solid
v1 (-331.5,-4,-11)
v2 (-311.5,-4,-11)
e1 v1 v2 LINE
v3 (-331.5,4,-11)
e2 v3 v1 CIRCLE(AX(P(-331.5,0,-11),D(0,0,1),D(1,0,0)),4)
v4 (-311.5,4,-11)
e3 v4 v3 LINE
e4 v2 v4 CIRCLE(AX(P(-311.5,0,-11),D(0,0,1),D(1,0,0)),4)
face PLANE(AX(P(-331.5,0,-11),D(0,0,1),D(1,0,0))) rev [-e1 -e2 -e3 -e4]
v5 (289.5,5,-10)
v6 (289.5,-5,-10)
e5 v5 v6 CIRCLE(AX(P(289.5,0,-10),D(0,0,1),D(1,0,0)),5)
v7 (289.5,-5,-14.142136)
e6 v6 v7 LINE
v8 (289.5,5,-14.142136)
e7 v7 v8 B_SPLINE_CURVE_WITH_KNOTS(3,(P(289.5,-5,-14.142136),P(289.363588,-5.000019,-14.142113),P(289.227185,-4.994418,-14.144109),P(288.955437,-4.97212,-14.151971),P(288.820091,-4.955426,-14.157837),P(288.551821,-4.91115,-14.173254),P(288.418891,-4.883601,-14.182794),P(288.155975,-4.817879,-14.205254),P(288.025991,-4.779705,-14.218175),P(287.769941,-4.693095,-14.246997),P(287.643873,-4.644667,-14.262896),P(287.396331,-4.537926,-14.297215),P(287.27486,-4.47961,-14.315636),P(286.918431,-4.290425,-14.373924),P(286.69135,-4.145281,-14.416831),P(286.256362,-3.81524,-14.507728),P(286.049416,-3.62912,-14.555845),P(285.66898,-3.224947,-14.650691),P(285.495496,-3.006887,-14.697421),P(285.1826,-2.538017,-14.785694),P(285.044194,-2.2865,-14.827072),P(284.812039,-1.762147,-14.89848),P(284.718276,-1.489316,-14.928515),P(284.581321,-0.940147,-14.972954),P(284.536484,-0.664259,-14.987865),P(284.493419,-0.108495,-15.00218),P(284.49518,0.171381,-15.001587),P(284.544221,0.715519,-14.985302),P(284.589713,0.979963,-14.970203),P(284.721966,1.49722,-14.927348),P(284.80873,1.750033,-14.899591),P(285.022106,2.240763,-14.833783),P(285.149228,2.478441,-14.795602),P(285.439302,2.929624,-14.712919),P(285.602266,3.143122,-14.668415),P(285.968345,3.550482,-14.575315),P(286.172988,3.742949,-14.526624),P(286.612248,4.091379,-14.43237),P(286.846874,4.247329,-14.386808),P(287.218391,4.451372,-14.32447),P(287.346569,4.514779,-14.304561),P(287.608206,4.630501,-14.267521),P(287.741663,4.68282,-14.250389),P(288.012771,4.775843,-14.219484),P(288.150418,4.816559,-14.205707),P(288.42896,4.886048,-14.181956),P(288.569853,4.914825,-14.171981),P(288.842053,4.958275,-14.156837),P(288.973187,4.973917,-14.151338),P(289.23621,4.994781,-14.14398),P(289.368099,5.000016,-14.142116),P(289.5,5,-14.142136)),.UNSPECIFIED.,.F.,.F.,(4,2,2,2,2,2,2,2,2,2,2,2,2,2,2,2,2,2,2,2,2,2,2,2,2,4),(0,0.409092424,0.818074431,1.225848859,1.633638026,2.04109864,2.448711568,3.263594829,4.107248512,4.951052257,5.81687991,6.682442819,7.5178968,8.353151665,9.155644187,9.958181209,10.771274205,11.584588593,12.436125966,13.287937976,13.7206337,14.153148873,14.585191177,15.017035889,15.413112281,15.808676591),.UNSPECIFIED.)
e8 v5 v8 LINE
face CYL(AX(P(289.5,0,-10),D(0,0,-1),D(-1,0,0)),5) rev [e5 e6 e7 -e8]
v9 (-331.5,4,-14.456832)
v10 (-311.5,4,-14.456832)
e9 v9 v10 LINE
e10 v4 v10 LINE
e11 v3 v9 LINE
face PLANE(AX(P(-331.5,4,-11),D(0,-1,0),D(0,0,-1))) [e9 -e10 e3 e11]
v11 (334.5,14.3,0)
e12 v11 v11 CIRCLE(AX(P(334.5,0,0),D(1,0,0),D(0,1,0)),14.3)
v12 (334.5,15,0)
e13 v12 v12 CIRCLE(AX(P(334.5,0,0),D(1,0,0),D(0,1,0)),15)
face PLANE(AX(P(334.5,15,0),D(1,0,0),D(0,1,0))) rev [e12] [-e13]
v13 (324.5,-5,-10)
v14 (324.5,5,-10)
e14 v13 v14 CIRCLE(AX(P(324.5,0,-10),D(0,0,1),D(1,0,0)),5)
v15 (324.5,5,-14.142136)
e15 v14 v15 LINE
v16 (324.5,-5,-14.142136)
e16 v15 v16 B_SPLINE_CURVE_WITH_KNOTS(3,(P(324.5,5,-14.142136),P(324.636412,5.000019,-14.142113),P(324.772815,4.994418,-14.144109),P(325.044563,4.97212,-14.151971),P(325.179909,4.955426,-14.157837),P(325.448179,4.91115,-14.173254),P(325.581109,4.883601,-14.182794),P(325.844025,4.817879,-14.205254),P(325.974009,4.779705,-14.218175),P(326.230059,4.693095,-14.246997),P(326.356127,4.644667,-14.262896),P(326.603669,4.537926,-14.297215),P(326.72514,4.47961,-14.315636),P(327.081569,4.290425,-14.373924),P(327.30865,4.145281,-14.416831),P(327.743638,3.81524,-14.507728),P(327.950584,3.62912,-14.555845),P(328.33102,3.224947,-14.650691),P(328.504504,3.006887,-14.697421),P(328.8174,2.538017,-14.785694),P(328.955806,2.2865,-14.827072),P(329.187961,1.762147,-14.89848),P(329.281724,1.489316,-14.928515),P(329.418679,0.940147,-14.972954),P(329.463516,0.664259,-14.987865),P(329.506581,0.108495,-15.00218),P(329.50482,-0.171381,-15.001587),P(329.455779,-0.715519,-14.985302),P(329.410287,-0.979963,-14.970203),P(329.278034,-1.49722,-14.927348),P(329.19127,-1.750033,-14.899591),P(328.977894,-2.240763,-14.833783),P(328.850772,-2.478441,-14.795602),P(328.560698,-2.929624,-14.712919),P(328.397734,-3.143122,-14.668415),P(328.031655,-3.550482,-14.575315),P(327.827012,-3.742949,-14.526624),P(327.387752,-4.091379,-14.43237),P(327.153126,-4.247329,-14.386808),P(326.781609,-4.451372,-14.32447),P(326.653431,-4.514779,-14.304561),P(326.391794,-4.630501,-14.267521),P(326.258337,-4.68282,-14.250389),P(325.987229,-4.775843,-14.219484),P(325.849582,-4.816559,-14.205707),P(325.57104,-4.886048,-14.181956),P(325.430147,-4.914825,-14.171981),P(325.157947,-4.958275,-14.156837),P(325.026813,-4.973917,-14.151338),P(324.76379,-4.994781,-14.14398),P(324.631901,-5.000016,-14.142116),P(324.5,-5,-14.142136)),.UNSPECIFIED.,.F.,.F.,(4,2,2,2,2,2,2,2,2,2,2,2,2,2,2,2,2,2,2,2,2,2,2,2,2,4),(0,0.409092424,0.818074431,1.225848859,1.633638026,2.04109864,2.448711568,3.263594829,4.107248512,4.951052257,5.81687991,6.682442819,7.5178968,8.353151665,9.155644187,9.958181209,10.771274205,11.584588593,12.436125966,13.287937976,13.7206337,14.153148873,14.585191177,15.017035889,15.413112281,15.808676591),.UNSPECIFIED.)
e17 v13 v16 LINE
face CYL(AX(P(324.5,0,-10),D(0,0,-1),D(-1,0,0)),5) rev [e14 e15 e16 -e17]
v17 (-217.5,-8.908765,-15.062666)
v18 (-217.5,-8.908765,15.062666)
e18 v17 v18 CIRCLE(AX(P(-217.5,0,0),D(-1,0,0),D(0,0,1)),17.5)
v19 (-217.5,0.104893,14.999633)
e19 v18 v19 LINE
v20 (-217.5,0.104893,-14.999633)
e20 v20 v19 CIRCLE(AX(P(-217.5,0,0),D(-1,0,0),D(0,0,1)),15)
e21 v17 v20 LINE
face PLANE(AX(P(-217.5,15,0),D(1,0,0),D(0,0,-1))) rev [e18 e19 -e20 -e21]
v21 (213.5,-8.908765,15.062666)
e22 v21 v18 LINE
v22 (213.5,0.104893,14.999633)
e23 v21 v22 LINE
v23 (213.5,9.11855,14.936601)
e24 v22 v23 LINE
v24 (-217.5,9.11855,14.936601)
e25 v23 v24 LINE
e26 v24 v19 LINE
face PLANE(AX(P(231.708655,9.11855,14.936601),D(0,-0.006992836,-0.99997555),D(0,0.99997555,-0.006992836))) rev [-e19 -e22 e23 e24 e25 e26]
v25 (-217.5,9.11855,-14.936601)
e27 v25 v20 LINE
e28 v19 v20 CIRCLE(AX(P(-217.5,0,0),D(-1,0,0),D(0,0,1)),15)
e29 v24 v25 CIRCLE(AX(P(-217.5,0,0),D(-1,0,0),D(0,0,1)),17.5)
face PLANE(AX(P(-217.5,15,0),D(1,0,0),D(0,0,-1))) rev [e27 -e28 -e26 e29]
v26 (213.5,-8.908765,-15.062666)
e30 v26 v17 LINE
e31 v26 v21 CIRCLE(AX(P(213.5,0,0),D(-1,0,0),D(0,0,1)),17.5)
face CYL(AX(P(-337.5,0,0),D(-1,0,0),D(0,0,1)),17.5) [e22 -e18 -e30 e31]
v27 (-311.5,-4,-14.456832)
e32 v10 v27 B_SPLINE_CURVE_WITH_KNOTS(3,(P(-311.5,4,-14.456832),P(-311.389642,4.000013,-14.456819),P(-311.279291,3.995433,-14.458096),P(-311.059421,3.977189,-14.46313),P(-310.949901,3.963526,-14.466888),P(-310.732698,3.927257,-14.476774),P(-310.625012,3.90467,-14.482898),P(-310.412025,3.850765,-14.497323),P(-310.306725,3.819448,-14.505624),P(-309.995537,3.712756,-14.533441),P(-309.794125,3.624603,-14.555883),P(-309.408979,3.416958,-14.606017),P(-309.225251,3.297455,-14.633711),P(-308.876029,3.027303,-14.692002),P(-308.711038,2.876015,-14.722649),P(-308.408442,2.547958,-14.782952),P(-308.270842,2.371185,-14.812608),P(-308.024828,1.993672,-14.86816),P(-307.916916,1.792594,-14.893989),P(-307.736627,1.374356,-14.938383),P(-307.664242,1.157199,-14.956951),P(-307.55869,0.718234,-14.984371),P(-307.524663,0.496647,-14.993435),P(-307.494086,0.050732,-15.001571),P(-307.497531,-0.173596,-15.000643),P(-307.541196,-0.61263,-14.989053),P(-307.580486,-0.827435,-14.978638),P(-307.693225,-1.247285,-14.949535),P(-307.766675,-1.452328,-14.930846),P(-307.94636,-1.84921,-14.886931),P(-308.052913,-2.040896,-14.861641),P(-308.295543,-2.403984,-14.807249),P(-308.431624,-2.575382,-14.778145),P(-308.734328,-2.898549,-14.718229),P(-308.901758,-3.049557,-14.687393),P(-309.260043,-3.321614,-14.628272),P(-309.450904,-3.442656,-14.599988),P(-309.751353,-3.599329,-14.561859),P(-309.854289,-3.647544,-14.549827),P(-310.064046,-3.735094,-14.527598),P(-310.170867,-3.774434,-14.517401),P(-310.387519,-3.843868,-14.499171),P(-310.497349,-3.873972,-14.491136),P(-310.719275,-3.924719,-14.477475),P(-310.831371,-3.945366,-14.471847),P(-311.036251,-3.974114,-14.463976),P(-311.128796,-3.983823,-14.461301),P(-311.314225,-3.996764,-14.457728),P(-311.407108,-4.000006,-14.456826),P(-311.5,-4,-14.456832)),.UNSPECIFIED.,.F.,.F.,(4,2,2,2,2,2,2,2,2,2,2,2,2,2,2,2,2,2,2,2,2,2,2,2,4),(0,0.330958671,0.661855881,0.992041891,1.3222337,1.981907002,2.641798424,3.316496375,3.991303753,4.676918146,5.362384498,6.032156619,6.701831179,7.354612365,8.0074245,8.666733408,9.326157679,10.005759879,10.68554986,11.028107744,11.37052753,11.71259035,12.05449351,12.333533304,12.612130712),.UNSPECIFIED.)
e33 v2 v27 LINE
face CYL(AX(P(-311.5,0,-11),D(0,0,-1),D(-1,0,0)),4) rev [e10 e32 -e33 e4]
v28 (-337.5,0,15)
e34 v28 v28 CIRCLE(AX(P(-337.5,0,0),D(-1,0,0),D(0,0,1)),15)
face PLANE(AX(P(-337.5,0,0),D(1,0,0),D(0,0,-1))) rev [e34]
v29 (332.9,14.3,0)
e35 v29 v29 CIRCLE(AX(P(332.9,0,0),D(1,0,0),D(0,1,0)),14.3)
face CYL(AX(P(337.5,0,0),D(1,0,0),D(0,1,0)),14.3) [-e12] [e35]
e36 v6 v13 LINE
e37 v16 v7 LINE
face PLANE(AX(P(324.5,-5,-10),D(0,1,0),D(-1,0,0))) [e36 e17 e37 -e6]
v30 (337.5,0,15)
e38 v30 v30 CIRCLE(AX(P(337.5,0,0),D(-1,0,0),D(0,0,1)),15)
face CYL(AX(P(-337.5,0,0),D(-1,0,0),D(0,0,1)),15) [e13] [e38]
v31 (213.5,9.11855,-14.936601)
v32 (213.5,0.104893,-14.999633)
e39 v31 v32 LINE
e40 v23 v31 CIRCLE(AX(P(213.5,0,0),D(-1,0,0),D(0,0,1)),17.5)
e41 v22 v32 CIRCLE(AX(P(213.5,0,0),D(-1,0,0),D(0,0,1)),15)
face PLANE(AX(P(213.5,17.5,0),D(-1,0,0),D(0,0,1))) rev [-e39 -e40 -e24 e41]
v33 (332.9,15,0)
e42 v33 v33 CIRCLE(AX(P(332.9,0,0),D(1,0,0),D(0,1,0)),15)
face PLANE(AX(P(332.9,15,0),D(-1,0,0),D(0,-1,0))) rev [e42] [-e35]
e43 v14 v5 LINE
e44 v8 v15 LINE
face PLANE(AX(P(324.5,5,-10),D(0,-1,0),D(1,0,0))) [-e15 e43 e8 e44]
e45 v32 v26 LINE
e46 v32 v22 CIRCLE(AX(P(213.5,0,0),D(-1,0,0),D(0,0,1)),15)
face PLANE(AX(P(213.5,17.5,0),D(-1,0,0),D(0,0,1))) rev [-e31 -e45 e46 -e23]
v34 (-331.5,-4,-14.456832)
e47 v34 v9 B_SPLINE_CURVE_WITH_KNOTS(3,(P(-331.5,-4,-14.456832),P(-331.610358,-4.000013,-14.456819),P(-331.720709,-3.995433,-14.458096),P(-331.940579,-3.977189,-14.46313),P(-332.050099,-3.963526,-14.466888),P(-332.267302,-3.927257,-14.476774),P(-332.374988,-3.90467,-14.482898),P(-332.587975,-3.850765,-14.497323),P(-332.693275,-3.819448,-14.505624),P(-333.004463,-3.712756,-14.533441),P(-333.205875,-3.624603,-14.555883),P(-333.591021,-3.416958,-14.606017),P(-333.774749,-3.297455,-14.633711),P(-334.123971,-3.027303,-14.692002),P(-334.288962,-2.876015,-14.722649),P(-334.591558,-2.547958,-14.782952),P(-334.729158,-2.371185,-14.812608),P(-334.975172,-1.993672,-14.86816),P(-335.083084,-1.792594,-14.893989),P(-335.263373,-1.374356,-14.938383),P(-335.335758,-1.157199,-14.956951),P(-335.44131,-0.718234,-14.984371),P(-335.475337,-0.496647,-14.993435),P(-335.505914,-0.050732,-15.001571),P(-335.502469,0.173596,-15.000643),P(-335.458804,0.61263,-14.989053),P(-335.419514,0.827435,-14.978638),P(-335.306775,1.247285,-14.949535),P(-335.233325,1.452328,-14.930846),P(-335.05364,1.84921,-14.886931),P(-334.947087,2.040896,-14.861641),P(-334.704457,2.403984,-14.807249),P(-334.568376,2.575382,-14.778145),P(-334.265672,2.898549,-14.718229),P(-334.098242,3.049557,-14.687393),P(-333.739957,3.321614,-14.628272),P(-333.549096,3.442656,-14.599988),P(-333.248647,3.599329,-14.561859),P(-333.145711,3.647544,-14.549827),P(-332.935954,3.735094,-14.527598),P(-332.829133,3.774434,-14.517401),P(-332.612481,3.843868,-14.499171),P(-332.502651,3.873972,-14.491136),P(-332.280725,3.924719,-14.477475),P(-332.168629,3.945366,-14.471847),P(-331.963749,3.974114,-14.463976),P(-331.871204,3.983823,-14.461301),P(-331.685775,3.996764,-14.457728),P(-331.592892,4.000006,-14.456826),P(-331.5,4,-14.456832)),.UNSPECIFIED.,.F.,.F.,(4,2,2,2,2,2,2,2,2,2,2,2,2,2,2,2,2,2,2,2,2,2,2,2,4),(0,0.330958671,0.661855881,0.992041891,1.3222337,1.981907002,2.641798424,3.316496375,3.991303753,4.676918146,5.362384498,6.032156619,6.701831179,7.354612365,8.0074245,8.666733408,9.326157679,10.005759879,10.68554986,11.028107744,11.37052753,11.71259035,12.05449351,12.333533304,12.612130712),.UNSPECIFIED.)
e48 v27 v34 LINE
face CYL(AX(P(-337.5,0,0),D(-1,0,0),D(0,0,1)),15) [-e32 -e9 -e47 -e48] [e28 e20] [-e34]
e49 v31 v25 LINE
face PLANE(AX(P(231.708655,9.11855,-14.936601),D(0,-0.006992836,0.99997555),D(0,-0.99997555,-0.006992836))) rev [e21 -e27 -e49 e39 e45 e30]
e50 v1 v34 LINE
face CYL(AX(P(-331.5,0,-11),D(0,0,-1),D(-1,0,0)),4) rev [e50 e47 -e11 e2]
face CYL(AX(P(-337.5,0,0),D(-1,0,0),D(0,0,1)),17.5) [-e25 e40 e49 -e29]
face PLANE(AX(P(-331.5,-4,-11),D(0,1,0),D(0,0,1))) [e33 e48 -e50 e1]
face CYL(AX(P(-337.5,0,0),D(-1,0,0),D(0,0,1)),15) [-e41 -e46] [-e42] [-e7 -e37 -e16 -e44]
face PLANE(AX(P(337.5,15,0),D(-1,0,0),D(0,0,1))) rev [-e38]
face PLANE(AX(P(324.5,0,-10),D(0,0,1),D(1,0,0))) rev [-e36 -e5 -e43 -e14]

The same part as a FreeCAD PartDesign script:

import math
import FreeCAD as App
import Part
import Sketcher
from FreeCAD import Vector
Q = App.Units.Quantity

doc = App.newDocument("Part")
body = doc.addObject("PartDesign::Body", "Body")

sketch1 = body.newObject("Sketcher::SketchObject", "Sketch")
sketch1.AttachmentSupport = (doc.getObject("XY_Plane"), [""])
sketch1.MapMode = "FlatFace"
sketch1.addGeometry(Part.LineSegment(Vector(-337.5, 0, 0), Vector(337.5, 0, 0)), False)
sketch1.addGeometry(Part.LineSegment(Vector(337.5, 0, 0), Vector(337.5, 15, 0)), False)
sketch1.addGeometry(Part.LineSegment(Vector(337.5, 15, 0), Vector(213.5, 15, 0)), False)
sketch1.addGeometry(Part.LineSegment(Vector(213.5, 15, 0), Vector(213.5, 17.5, 0)), False)
sketch1.addGeometry(Part.LineSegment(Vector(213.5, 17.5, 0), Vector(-217.5, 17.5, 0)), False)
sketch1.addGeometry(Part.LineSegment(Vector(-217.5, 17.5, 0), Vector(-217.5, 15, 0)), False)
sketch1.addGeometry(Part.LineSegment(Vector(-217.5, 15, 0), Vector(-337.5, 15, 0)), False)
sketch1.addGeometry(Part.LineSegment(Vector(-337.5, 15, 0), Vector(-337.5, 0, 0)), False)
sketch1.addConstraint(Sketcher.Constraint("Coincident", 0, 2, 1, 1))
sketch1.addConstraint(Sketcher.Constraint("Coincident", 1, 2, 2, 1))
sketch1.addConstraint(Sketcher.Constraint("Coincident", 2, 2, 3, 1))
sketch1.addConstraint(Sketcher.Constraint("Coincident", 3, 2, 4, 1))
sketch1.addConstraint(Sketcher.Constraint("Coincident", 4, 2, 5, 1))
sketch1.addConstraint(Sketcher.Constraint("Coincident", 5, 2, 6, 1))
sketch1.addConstraint(Sketcher.Constraint("Coincident", 6, 2, 7, 1))
sketch1.addConstraint(Sketcher.Constraint("Coincident", 7, 2, 0, 1))
sketch1.addConstraint(Sketcher.Constraint("Horizontal", 0))
sketch1.addConstraint(Sketcher.Constraint("Vertical", 1))
sketch1.addConstraint(Sketcher.Constraint("Horizontal", 2))
sketch1.addConstraint(Sketcher.Constraint("Vertical", 3))
sketch1.addConstraint(Sketcher.Constraint("Horizontal", 4))
sketch1.addConstraint(Sketcher.Constraint("Vertical", 5))
sketch1.addConstraint(Sketcher.Constraint("Horizontal", 6))
sketch1.addConstraint(Sketcher.Constraint("Vertical", 7))
sketch1.addConstraint(Sketcher.Constraint("Symmetric", 0, 2, 7, 2, -1, 1))
sketch1.addConstraint(Sketcher.Constraint("Horizontal", 2, 2, 5, 2))
sketch1.addConstraint(Sketcher.Constraint("DistanceX", 0, 1, 0, 2, Q("675 mm")))
sketch1.addConstraint(Sketcher.Constraint("DistanceX", 2, 2, 2, 1, Q("124 mm")))
sketch1.addConstraint(Sketcher.Constraint("DistanceX", 4, 2, 4, 1, Q("431 mm")))
sketch1.addConstraint(Sketcher.Constraint("DistanceY", 1, 1, 1, 2, Q("15 mm")))
sketch1.addConstraint(Sketcher.Constraint("DistanceY", 3, 1, 3, 2, Q("2.5 mm")))
revolution = body.newObject("PartDesign::Revolution", "Revolution")
revolution.Profile = sketch1
revolution.ReferenceAxis = (sketch1, ["H_Axis"])
revolution.Angle = 360

sketch2 = body.newObject("Sketcher::SketchObject", "Sketch001")
sketch2.AttachmentSupport = (doc.getObject("YZ_Plane"), [""])
sketch2.MapMode = "FlatFace"
sketch2.AttachmentOffset = App.Placement(Vector(0, 0, -217.5), App.Rotation())
sketch2.addGeometry(Part.LineSegment(Vector(-9, -15, 0), Vector(9, -15, 0)), False)
sketch2.addGeometry(Part.ArcOfCircle(Part.Circle(Vector(0, 0, 0), Vector(0, 0, 1), 17), math.radians(-121), math.radians(-59)), False)
sketch2.addGeometry(Part.LineSegment(Vector(9, 15, 0), Vector(-9, 15, 0)), False)
sketch2.addGeometry(Part.ArcOfCircle(Part.Circle(Vector(0, 0, 0), Vector(0, 0, 1), 17), math.radians(59), math.radians(121)), False)
sketch2.addConstraint(Sketcher.Constraint("Coincident", 0, 1, 1, 1))
sketch2.addConstraint(Sketcher.Constraint("Coincident", 1, 2, 0, 2))
sketch2.addConstraint(Sketcher.Constraint("Coincident", 2, 1, 3, 1))
sketch2.addConstraint(Sketcher.Constraint("Coincident", 3, 2, 2, 2))
sketch2.addConstraint(Sketcher.Constraint("Coincident", 1, 3, -1, 1))
sketch2.addConstraint(Sketcher.Constraint("Coincident", 3, 3, -1, 1))
sketch2.addConstraint(Sketcher.Constraint("Equal", 1, 3))
sketch2.addConstraint(Sketcher.Constraint("Vertical", 1, 2, 2, 1))
sketch2.addConstraint(Sketcher.Constraint("Vertical", 0, 1, 3, 2))
sketch2.addConstraint(Sketcher.Constraint("Radius", 1, Q("17.5 mm")))
sketch2.addConstraint(Sketcher.Constraint("DistanceY", 1, 2, -1, 1, Q("14.936601 mm")))
sketch2.addConstraint(Sketcher.Constraint("DistanceY", 0, 1, 3, 2, Q("30.125332 mm")))
pocket1 = body.newObject("PartDesign::Pocket", "Pocket")
pocket1.Profile = sketch2
pocket1.Length = 431
pocket1.Reversed = True

sketch3 = body.newObject("Sketcher::SketchObject", "Sketch002")
sketch3.AttachmentSupport = (doc.getObject("XY_Plane"), [""])
sketch3.MapMode = "FlatFace"
sketch3.AttachmentOffset = App.Placement(Vector(0, 0, -15), App.Rotation())
sketch3.addGeometry(Part.LineSegment(Vector(-311.5, 4, 0), Vector(-331.5, 4, 0)), False)
sketch3.addGeometry(Part.ArcOfCircle(Part.Circle(Vector(-331.5, 0, 0), Vector(0, 0, 1), 4), math.radians(90), math.radians(270)), False)
sketch3.addGeometry(Part.LineSegment(Vector(-331.5, -4, 0), Vector(-311.5, -4, 0)), False)
sketch3.addGeometry(Part.ArcOfCircle(Part.Circle(Vector(-311.5, 0, 0), Vector(0, 0, 1), 4), math.radians(-90), math.radians(90)), False)
sketch3.addConstraint(Sketcher.Constraint("Tangent", 0, 2, 1, 1))
sketch3.addConstraint(Sketcher.Constraint("Tangent", 1, 2, 2, 1))
sketch3.addConstraint(Sketcher.Constraint("Tangent", 2, 2, 3, 1))
sketch3.addConstraint(Sketcher.Constraint("Tangent", 3, 2, 0, 1))
sketch3.addConstraint(Sketcher.Constraint("Horizontal", 0))
sketch3.addConstraint(Sketcher.Constraint("Horizontal", 2))
sketch3.addConstraint(Sketcher.Constraint("PointOnObject", 1, 3, -1))
sketch3.addConstraint(Sketcher.Constraint("Radius", 1, Q("4 mm")))
sketch3.addConstraint(Sketcher.Constraint("DistanceX", 0, 2, 0, 1, Q("20 mm")))
sketch3.addConstraint(Sketcher.Constraint("DistanceX", 1, 3, -1, 1, Q("331.5 mm")))
pocket2 = body.newObject("PartDesign::Pocket", "Pocket001")
pocket2.Profile = sketch3
pocket2.Length = 4
pocket2.Reversed = True

sketch4 = body.newObject("Sketcher::SketchObject", "Sketch003")
sketch4.AttachmentSupport = (doc.getObject("XY_Plane"), [""])
sketch4.MapMode = "FlatFace"
sketch4.addGeometry(Part.LineSegment(Vector(332.9, 15, 0), Vector(332.9, 14.3, 0)), False)
sketch4.addGeometry(Part.LineSegment(Vector(332.9, 14.3, 0), Vector(334.5, 14.3, 0)), False)
sketch4.addGeometry(Part.LineSegment(Vector(334.5, 14.3, 0), Vector(334.5, 15, 0)), False)
sketch4.addGeometry(Part.LineSegment(Vector(334.5, 15, 0), Vector(332.9, 15, 0)), False)
sketch4.addConstraint(Sketcher.Constraint("Coincident", 0, 2, 1, 1))
sketch4.addConstraint(Sketcher.Constraint("Coincident", 1, 2, 2, 1))
sketch4.addConstraint(Sketcher.Constraint("Coincident", 2, 2, 3, 1))
sketch4.addConstraint(Sketcher.Constraint("Coincident", 3, 2, 0, 1))
sketch4.addConstraint(Sketcher.Constraint("Vertical", 0))
sketch4.addConstraint(Sketcher.Constraint("Horizontal", 1))
sketch4.addConstraint(Sketcher.Constraint("Vertical", 2))
sketch4.addConstraint(Sketcher.Constraint("Horizontal", 3))
sketch4.addConstraint(Sketcher.Constraint("DistanceX", 1, 1, 1, 2, Q("1.6 mm")))
sketch4.addConstraint(Sketcher.Constraint("DistanceY", 0, 2, 0, 1, Q("0.7 mm")))
sketch4.addConstraint(Sketcher.Constraint("DistanceY", -1, 1, 2, 2, Q("15 mm")))
sketch4.addConstraint(Sketcher.Constraint("DistanceX", -1, 1, 0, 2, Q("332.9 mm")))
groove = body.newObject("PartDesign::Groove", "Groove")
groove.Profile = sketch4
groove.ReferenceAxis = (sketch4, ["H_Axis"])
groove.Angle = 360

sketch5 = body.newObject("Sketcher::SketchObject", "Sketch004")
sketch5.AttachmentSupport = (doc.getObject("XY_Plane"), [""])
sketch5.MapMode = "FlatFace"
sketch5.AttachmentOffset = App.Placement(Vector(0, 0, -15), App.Rotation())
sketch5.addGeometry(Part.LineSegment(Vector(290, -5, 0), Vector(324, -5, 0)), False)
sketch5.addGeometry(Part.ArcOfCircle(Part.Circle(Vector(324, 0, 0), Vector(0, 0, 1), 5), math.radians(-90), math.radians(90)), False)
sketch5.addGeometry(Part.LineSegment(Vector(324, 5, 0), Vector(290, 5, 0)), False)
sketch5.addGeometry(Part.ArcOfCircle(Part.Circle(Vector(290, 0, 0), Vector(0, 0, 1), 5), math.radians(90), math.radians(270)), False)
sketch5.addConstraint(Sketcher.Constraint("Tangent", 0, 2, 1, 1))
sketch5.addConstraint(Sketcher.Constraint("Tangent", 1, 2, 2, 1))
sketch5.addConstraint(Sketcher.Constraint("Tangent", 2, 2, 3, 1))
sketch5.addConstraint(Sketcher.Constraint("Tangent", 3, 2, 0, 1))
sketch5.addConstraint(Sketcher.Constraint("Horizontal", 0))
sketch5.addConstraint(Sketcher.Constraint("Horizontal", 2))
sketch5.addConstraint(Sketcher.Constraint("PointOnObject", 1, 3, -1))
sketch5.addConstraint(Sketcher.Constraint("Radius", 1, Q("5 mm")))
sketch5.addConstraint(Sketcher.Constraint("DistanceX", 0, 1, 0, 2, Q("35 mm")))
sketch5.addConstraint(Sketcher.Constraint("DistanceX", -1, 1, 1, 3, Q("324.5 mm")))
pocket3 = body.newObject("PartDesign::Pocket", "Pocket002")
pocket3.Profile = sketch5
pocket3.Length = 5
pocket3.Reversed = True

doc.recompute()
